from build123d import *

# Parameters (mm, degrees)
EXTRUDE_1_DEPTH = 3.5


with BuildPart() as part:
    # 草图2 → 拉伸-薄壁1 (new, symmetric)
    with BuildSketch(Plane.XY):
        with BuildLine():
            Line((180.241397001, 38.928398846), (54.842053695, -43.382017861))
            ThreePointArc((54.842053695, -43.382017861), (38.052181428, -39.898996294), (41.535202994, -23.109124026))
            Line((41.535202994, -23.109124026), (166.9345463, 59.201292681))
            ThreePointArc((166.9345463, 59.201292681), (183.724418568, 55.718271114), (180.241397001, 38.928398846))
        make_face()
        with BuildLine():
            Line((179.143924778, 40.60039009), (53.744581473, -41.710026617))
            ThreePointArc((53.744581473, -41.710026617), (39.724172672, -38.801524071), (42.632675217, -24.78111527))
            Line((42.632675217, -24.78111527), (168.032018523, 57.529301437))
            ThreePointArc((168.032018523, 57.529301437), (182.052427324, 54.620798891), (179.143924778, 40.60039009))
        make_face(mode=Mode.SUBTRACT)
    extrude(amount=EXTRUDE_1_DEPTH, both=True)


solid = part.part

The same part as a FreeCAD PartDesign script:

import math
import FreeCAD as App
import Part
import Sketcher
Q = App.Units.Quantity

doc = App.newDocument("Part")
params = doc.addObject("Spreadsheet::Sheet", "Params")
for row, (alias, value) in enumerate([
    ("sketch1_length", "150 mm"),
    ("pad1_length", "7 mm"),
], start=1):
    params.set(f"A{row}", alias)
    params.set(f"B{row}", "=" + value)
    params.setAlias(f"B{row}", alias)

body = doc.addObject("PartDesign::Body", "Body")

sketch1 = doc.addObject("Sketcher::SketchObject", "Sketch")
body.addObject(sketch1)
sketch1.AttachmentSupport = (doc.XY_Plane, [""])
sketch1.MapMode = "FlatFace"
sketch1.addGeometry([
    Part.LineSegment(App.Vector(54.842054, -43.382018, 0), App.Vector(180.241397, 38.928399, 0)),
    Part.ArcOfCircle(Part.Circle(App.Vector(173.587972, 49.064846, 0), App.Vector(0, 0, 1), 12.125), math.radians(-56.719652), math.radians(123.280348)),
    Part.LineSegment(App.Vector(166.934546, 59.201293, 0), App.Vector(41.535203, -23.109124, 0)),
    Part.ArcOfCircle(Part.Circle(App.Vector(48.188628, -33.245571, 0), App.Vector(0, 0, 1), 12.125), math.radians(123.280348), math.radians(303.280348)),
    Part.LineSegment(App.Vector(179.143925, 40.60039, 0), App.Vector(53.744581, -41.710027, 0)),
    Part.ArcOfCircle(Part.Circle(App.Vector(48.188628, -33.245571, 0), App.Vector(0, 0, 1), 10.125), math.radians(123.280348), math.radians(303.280348)),
    Part.LineSegment(App.Vector(42.632675, -24.781115, 0), App.Vector(168.032019, 57.529301, 0)),
    Part.ArcOfCircle(Part.Circle(App.Vector(173.587972, 49.064846, 0), App.Vector(0, 0, 1), 10.125), math.radians(-56.719652), math.radians(123.280348)),
], False)
sketch1.addConstraint([
    Sketcher.Constraint("Tangent", 0, 2, 1, 1),
    Sketcher.Constraint("Tangent", 1, 2, 2, 1),
    Sketcher.Constraint("Tangent", 2, 2, 3, 1),
    Sketcher.Constraint("Tangent", 3, 2, 0, 1),
    Sketcher.Constraint("Tangent", 4, 2, 5, 2),
    Sketcher.Constraint("Tangent", 5, 1, 6, 1),
    Sketcher.Constraint("Tangent", 6, 2, 7, 2),
    Sketcher.Constraint("Tangent", 7, 1, 4, 1),
    Sketcher.Constraint("Coincident", 5, 3, 3, 3),
    Sketcher.Constraint("Coincident", 7, 3, 1, 3),
    Sketcher.Constraint("Equal", 1, 3),
    Sketcher.Constraint("Equal", 5, 7),
    Sketcher.Constraint("Distance", 0, Q("150 mm")),
    Sketcher.Constraint("Radius", 1, Q("12.125 mm")),
    Sketcher.Constraint("Radius", 5, Q("10.125 mm")),
    Sketcher.Constraint("DistanceY", -1, 1, 0, 2, Q("38.928399 mm")),
    Sketcher.Constraint("DistanceY", -1, 1, 6, 2, Q("57.529301 mm")),
    Sketcher.Constraint("DistanceX", -1, 1, 1, 3, Q("173.587972 mm")),
])
sketch1.setExpression("Constraints[12]", "Params.sketch1_length")
pad1 = doc.addObject("PartDesign::Pad", "Pad")
body.addObject(pad1)
pad1.Profile = sketch1
pad1.setExpression("Length", "Params.pad1_length")
pad1.Midplane = True

doc.recompute()
